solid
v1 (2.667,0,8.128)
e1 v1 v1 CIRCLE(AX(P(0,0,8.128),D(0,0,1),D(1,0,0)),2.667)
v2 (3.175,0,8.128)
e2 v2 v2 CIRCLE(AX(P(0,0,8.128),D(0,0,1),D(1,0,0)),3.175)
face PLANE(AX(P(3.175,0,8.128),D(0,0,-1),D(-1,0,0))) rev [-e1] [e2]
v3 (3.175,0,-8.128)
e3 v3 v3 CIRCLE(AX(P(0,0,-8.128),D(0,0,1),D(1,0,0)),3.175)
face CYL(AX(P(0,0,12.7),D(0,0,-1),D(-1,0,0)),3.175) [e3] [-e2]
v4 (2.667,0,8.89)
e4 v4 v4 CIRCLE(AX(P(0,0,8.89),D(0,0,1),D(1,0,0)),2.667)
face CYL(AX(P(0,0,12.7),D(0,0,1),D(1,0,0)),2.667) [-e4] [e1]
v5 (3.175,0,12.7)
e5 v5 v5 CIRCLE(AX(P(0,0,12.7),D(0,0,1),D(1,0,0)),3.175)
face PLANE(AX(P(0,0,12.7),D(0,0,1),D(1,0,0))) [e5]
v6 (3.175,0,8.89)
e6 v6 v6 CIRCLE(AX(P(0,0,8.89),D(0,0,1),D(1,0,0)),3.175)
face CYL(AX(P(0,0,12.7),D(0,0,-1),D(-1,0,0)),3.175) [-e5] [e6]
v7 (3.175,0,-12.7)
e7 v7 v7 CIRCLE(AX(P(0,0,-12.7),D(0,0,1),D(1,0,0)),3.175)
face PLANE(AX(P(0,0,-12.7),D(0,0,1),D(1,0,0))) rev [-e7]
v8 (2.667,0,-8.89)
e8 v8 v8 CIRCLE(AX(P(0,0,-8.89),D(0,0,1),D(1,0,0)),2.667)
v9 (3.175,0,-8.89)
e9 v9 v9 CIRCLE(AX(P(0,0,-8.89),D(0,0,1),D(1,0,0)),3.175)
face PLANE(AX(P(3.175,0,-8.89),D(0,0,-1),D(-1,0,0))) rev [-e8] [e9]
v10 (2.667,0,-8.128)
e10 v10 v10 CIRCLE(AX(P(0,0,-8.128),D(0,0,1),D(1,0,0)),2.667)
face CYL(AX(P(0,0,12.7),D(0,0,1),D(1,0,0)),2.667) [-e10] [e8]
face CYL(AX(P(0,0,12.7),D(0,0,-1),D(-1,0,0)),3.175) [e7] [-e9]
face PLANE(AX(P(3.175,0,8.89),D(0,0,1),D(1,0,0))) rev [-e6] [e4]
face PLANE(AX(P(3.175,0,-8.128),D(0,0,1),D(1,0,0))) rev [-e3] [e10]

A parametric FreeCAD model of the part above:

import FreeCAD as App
import Part
import Sketcher
from FreeCAD import Vector
Q = App.Units.Quantity

doc = App.newDocument("Part")
body = doc.addObject("PartDesign::Body", "Body")

# Sketch on XY plane
sketch1 = body.newObject("Sketcher::SketchObject", "Sketch")
sketch1.AttachmentSupport = (doc.getObject("XY_Plane"), [""])
sketch1.MapMode = "FlatFace"
sketch1.addGeometry(Part.Circle(Vector(0, 0, 0), Vector(0, 0, 1), 3.175), False)
sketch1.addConstraint([
    Sketcher.Constraint("Coincident", 0, 3, -1, 1),
    Sketcher.Constraint("Diameter", 0, Q("0.25 in")),
])
pad1 = body.newObject("PartDesign::Pad", "Pad")
pad1.Profile = sketch1
pad1.Length = Q("1 in")
pad1.Midplane = True

# Sketch on XZ plane
sketch2 = body.newObject("Sketcher::SketchObject", "Sketch001")
sketch2.AttachmentSupport = (doc.getObject("XZ_Plane"), [""])
sketch2.MapMode = "FlatFace"
sketch2.addGeometry([
    Part.LineSegment(Vector(2.667, -8.89, 0), Vector(2.667, -8.128, 0)),  # 0
    Part.LineSegment(Vector(2.667, -8.128, 0), Vector(3.175, -8.128, 0)),  # 1
    Part.LineSegment(Vector(3.175, -8.128, 0), Vector(3.175, -8.89, 0)),  # 2
    Part.LineSegment(Vector(3.175, -8.89, 0), Vector(2.667, -8.89, 0)),  # 3
    Part.LineSegment(Vector(2.667, 8.128, 0), Vector(2.667, 8.89, 0)),  # 4
    Part.LineSegment(Vector(2.667, 8.89, 0), Vector(3.175, 8.89, 0)),  # 5
    Part.LineSegment(Vector(3.175, 8.89, 0), Vector(3.175, 8.128, 0)),  # 6
    Part.LineSegment(Vector(3.175, 8.128, 0), Vector(2.667, 8.128, 0)),  # 7
], False)
sketch2.addConstraint([
    Sketcher.Constraint("Coincident", 0, 2, 1, 1),
    Sketcher.Constraint("Coincident", 1, 2, 2, 1),
    Sketcher.Constraint("Coincident", 2, 2, 3, 1),
    Sketcher.Constraint("Coincident", 3, 2, 0, 1),
    Sketcher.Constraint("Coincident", 4, 2, 5, 1),
    Sketcher.Constraint("Coincident", 5, 2, 6, 1),
    Sketcher.Constraint("Coincident", 6, 2, 7, 1),
    Sketcher.Constraint("Coincident", 7, 2, 4, 1),
    Sketcher.Constraint("Vertical", 0),
    Sketcher.Constraint("Horizontal", 1),
    Sketcher.Constraint("Vertical", 2),
    Sketcher.Constraint("Horizontal", 3),
    Sketcher.Constraint("Vertical", 4),
    Sketcher.Constraint("Horizontal", 5),
    Sketcher.Constraint("Vertical", 6),
    Sketcher.Constraint("Horizontal", 7),
    Sketcher.Constraint("Symmetric", 3, 2, 4, 2, -1),
    Sketcher.Constraint("Symmetric", 1, 2, 6, 2, -1),
    Sketcher.Constraint("DistanceX", 1, 1, 1, 2, Q("0.02 in")),
    Sketcher.Constraint("DistanceY", 0, 1, 0, 2, Q("0.03 in")),
    Sketcher.Constraint("DistanceY", 3, 2, 4, 2, Q("0.7 in")),
    Sketcher.Constraint("DistanceX", -1, 1, 0, 2, Q("0.105 in")),
])
groove = body.newObject("PartDesign::Groove", "Groove")
groove.Profile = sketch2
groove.ReferenceAxis = (sketch2, ["V_Axis"])
groove.Angle = 360

doc.recompute()
